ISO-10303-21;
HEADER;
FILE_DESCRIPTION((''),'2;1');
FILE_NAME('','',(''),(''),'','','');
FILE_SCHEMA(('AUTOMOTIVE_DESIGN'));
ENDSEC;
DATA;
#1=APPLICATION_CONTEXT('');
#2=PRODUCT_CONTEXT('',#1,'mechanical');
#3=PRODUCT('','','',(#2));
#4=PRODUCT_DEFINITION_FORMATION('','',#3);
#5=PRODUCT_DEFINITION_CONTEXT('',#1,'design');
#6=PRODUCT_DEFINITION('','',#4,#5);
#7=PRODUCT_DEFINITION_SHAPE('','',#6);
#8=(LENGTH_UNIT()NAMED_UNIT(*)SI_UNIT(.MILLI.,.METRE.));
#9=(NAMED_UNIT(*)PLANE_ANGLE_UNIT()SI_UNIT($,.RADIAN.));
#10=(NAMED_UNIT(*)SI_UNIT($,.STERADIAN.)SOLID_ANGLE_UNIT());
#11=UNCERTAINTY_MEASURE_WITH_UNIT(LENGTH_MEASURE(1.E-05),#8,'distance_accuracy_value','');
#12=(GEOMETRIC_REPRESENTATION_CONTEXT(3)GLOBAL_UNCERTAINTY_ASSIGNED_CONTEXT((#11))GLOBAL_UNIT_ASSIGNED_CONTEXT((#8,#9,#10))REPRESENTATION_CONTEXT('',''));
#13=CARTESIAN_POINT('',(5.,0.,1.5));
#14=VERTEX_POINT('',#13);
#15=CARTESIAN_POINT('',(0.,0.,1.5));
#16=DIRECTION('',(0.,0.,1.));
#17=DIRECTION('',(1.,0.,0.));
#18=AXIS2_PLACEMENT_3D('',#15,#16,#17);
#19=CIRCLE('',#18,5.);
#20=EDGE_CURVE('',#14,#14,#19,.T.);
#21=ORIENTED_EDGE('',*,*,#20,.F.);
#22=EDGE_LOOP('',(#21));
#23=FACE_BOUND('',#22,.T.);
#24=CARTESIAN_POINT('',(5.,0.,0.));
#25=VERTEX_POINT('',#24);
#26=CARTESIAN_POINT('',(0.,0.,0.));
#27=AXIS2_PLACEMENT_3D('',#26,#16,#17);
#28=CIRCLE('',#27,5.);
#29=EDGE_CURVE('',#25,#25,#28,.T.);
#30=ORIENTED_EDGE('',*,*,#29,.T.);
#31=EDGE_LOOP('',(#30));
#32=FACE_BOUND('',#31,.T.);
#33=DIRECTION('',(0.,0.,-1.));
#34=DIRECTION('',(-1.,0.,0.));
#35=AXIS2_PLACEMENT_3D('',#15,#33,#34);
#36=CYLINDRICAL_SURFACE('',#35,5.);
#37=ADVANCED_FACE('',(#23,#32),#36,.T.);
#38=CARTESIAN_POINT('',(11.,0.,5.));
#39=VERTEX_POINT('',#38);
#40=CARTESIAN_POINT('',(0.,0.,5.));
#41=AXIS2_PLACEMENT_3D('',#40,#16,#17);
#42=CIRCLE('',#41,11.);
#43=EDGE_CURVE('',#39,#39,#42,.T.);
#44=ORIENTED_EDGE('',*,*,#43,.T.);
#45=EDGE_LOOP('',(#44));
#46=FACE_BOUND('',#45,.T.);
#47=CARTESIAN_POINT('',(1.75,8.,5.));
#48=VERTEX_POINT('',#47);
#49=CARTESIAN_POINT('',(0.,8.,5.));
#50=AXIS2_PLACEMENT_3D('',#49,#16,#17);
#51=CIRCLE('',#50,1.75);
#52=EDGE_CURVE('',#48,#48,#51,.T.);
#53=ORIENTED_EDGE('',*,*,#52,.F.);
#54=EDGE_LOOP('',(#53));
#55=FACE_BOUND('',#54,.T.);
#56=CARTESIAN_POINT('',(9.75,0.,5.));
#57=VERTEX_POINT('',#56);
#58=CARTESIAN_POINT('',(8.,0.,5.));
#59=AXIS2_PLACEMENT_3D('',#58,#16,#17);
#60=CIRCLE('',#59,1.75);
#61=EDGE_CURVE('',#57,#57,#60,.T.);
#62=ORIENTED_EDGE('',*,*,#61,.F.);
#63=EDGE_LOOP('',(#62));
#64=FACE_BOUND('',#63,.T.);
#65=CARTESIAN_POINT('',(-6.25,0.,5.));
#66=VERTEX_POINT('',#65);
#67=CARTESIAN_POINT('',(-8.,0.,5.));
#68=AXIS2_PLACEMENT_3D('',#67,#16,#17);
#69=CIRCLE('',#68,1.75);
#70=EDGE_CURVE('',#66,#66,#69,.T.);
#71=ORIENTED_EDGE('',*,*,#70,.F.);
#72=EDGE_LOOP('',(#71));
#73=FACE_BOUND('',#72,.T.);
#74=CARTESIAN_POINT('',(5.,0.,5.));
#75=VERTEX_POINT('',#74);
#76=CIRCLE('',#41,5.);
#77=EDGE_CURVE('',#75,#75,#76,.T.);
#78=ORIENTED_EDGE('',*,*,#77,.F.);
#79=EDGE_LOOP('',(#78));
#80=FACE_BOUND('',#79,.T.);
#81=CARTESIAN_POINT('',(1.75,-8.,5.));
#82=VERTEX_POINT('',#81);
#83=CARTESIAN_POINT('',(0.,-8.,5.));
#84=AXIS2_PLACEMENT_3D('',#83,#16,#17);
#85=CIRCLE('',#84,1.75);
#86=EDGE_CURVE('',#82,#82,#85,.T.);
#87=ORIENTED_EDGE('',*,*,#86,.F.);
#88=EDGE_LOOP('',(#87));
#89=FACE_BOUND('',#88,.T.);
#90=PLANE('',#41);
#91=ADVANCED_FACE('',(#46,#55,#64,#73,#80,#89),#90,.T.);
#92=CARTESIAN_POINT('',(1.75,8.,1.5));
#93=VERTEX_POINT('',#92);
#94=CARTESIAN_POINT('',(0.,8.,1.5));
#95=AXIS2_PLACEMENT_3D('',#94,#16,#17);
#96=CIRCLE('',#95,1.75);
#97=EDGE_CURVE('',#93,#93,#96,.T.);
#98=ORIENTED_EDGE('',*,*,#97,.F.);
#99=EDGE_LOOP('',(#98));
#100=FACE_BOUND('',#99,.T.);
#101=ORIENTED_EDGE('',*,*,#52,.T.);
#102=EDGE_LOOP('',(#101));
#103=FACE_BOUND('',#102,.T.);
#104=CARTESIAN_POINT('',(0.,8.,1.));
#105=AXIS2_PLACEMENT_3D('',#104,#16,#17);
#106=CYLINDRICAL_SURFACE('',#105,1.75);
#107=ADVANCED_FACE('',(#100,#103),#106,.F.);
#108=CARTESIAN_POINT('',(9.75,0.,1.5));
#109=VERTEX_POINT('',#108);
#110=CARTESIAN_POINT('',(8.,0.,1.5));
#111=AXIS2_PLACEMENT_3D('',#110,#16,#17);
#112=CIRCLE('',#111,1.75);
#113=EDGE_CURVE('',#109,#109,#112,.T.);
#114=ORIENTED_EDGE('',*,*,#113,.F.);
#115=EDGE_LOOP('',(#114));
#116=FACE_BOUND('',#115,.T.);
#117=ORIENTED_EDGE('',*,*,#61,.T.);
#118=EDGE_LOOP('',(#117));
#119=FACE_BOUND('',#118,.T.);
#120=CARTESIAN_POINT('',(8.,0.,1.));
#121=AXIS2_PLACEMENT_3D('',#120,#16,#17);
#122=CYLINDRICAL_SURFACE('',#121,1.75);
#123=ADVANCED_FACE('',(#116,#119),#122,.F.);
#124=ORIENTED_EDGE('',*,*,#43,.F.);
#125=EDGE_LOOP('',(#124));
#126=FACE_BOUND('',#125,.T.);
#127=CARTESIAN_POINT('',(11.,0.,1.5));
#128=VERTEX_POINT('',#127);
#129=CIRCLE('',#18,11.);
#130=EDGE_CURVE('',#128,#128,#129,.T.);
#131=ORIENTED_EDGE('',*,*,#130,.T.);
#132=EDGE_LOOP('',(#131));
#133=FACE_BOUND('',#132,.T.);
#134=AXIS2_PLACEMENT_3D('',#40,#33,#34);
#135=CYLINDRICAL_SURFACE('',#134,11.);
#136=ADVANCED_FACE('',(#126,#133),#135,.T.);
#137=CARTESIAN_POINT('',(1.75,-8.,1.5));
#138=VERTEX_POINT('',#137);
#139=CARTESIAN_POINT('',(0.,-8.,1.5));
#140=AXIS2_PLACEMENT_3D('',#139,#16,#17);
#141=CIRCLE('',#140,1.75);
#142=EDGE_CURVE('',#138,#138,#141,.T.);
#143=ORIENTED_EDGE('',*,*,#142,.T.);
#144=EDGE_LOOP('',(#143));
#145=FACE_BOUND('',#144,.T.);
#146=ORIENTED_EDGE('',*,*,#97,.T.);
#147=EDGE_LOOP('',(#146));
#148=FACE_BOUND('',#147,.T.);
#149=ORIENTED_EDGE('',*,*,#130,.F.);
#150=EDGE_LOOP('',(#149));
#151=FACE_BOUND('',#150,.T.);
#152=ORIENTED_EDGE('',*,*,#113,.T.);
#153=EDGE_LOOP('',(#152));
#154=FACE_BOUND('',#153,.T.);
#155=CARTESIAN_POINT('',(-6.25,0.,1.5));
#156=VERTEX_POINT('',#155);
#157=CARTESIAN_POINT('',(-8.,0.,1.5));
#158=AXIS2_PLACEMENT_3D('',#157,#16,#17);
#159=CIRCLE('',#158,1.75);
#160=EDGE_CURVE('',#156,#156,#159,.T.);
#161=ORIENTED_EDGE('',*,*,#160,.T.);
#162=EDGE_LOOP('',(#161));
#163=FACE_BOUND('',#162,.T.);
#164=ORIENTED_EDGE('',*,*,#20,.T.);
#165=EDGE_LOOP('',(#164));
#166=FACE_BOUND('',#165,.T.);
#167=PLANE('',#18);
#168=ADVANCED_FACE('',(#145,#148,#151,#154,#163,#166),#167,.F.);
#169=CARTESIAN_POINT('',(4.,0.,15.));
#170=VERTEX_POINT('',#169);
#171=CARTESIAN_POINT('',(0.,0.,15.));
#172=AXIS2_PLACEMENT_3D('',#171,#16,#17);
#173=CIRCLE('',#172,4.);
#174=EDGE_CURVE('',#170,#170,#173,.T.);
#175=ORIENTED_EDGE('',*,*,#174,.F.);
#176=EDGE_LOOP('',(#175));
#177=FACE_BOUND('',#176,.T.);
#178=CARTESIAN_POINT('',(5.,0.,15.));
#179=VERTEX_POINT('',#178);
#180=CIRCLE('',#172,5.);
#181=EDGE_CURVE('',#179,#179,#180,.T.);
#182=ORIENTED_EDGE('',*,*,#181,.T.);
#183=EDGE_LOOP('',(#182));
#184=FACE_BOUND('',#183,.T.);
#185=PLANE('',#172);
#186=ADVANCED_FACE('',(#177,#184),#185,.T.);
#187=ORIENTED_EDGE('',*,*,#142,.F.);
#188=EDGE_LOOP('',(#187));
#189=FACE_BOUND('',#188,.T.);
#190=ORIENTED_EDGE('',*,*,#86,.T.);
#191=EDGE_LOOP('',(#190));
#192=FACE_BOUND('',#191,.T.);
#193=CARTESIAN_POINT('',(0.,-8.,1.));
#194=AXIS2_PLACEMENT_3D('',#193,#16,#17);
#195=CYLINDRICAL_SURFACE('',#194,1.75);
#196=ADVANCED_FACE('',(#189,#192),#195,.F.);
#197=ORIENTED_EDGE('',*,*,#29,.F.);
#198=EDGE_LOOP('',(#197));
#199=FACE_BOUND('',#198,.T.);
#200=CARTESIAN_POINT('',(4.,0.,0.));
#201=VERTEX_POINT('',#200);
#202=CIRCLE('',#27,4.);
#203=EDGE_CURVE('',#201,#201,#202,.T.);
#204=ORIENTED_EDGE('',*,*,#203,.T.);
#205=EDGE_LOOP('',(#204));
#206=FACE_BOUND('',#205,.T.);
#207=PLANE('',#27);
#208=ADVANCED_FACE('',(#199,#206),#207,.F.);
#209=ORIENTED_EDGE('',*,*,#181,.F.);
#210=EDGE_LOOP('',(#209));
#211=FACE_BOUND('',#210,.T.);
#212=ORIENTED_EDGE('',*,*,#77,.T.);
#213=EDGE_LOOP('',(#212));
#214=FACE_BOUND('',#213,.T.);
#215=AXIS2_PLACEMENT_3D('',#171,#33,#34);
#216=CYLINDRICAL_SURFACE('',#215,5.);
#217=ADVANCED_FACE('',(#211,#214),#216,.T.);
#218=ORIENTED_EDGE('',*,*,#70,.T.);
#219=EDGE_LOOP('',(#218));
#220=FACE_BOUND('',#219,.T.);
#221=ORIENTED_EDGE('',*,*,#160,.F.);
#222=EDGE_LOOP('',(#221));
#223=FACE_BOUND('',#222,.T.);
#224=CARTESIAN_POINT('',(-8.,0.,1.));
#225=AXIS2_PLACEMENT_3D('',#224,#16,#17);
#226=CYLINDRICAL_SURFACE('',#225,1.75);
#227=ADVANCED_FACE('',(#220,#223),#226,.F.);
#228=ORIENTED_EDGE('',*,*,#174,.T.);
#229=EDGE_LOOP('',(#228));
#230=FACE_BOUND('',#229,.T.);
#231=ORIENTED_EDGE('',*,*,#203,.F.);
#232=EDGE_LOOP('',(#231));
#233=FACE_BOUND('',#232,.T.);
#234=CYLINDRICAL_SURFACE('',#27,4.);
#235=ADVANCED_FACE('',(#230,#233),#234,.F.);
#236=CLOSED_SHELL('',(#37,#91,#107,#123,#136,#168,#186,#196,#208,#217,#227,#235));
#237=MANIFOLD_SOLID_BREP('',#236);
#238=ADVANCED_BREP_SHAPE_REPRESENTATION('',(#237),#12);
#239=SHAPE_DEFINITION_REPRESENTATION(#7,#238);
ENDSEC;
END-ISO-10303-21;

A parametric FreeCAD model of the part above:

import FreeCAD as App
import Part
import Sketcher
from FreeCAD import Vector
Q = App.Units.Quantity

doc = App.newDocument("Part")
body = doc.addObject("PartDesign::Body", "Body")

sketch1 = body.newObject("Sketcher::SketchObject", "Sketch")
sketch1.AttachmentSupport = (doc.getObject("XY_Plane"), [""])
sketch1.MapMode = "FlatFace"
sketch1.addGeometry(Part.Circle(Vector(0, 0, 0), Vector(0, 0, 1), 5), False)
sketch1.addConstraint([
    Sketcher.Constraint("Coincident", 0, 3, -1, 1),
    Sketcher.Constraint("Diameter", 0, Q("10 mm")),
])
pad1 = body.newObject("PartDesign::Pad", "Pad")
pad1.Profile = sketch1
pad1.Length = 1.5

sketch2 = body.newObject("Sketcher::SketchObject", "Sketch001")
sketch2.AttachmentSupport = (doc.getObject("XY_Plane"), [""])
sketch2.MapMode = "FlatFace"
sketch2.AttachmentOffset = App.Placement(Vector(0, 0, 1.5), App.Rotation())
sketch2.addGeometry(Part.Circle(Vector(0, 0, 0), Vector(0, 0, 1), 11), False)
sketch2.addConstraint([
    Sketcher.Constraint("Coincident", 0, 3, -1, 1),
    Sketcher.Constraint("Diameter", 0, Q("22 mm")),
])
pad2 = body.newObject("PartDesign::Pad", "Pad001")
pad2.Profile = sketch2
pad2.Length = 3.5

sketch3 = body.newObject("Sketcher::SketchObject", "Sketch002")
sketch3.AttachmentSupport = (doc.getObject("XY_Plane"), [""])
sketch3.MapMode = "FlatFace"
sketch3.AttachmentOffset = App.Placement(Vector(0, 0, 5), App.Rotation())
sketch3.addGeometry(Part.Circle(Vector(0, 0, 0), Vector(0, 0, 1), 5), False)
sketch3.addConstraint([
    Sketcher.Constraint("Coincident", 0, 3, -1, 1),
    Sketcher.Constraint("Diameter", 0, Q("10 mm")),
])
pad3 = body.newObject("PartDesign::Pad", "Pad002")
pad3.Profile = sketch3
pad3.Length = 10

sketch4 = body.newObject("Sketcher::SketchObject", "Sketch003")
sketch4.AttachmentSupport = (doc.getObject("XY_Plane"), [""])
sketch4.MapMode = "FlatFace"
sketch4.AttachmentOffset = App.Placement(Vector(0, 0, 5), App.Rotation())
sketch4.addGeometry([
    Part.Circle(Vector(0, 8, 0), Vector(0, 0, 1), 1.8),
    Part.Circle(Vector(0, -8, 0), Vector(0, 0, 1), 1.8),
    Part.Circle(Vector(8, 0, 0), Vector(0, 0, 1), 1.8),
    Part.Circle(Vector(-8, 0, 0), Vector(0, 0, 1), 1.8),
], False)
sketch4.addConstraint([
    Sketcher.Constraint("Equal", 0, 1),
    Sketcher.Constraint("Equal", 1, 2),
    Sketcher.Constraint("Equal", 2, 3),
    Sketcher.Constraint("Symmetric", 0, 3, 1, 3, -1, 1),
    Sketcher.Constraint("Symmetric", 2, 3, 3, 3, -1, 1),
    Sketcher.Constraint("PointOnObject", 0, 3, -2),
    Sketcher.Constraint("PointOnObject", 2, 3, -1),
    Sketcher.Constraint("Diameter", 0, Q("3.5 mm")),
    Sketcher.Constraint("DistanceY", -1, 1, 0, 3, Q("8 mm")),
    Sketcher.Constraint("DistanceX", -1, 1, 2, 3, Q("8 mm")),
])
pocket1 = body.newObject("PartDesign::Pocket", "Pocket")
pocket1.Profile = sketch4
pocket1.Length = 4

sketch5 = body.newObject("Sketcher::SketchObject", "Sketch004")
sketch5.AttachmentSupport = (doc.getObject("XY_Plane"), [""])
sketch5.MapMode = "FlatFace"
sketch5.AttachmentOffset = App.Placement(Vector(0, 0, 15), App.Rotation())
sketch5.addGeometry(Part.Circle(Vector(0, 0, 0), Vector(0, 0, 1), 4), False)
sketch5.addConstraint([
    Sketcher.Constraint("Coincident", 0, 3, -1, 1),
    Sketcher.Constraint("Diameter", 0, Q("8 mm")),
])
pocket2 = body.newObject("PartDesign::Pocket", "Pocket001")
pocket2.Profile = sketch5
pocket2.Length = 15

doc.recompute()
